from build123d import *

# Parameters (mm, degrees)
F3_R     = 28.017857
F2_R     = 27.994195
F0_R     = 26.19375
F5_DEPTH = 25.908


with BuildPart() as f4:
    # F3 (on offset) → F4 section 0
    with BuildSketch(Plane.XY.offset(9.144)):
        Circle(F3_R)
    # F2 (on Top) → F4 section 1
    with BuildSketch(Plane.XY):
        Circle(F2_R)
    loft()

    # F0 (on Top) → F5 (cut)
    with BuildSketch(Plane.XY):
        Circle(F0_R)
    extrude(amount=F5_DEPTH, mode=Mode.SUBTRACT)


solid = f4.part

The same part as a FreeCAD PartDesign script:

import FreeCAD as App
import Part
import Sketcher
Q = App.Units.Quantity

doc = App.newDocument("Part")
body = doc.addObject("PartDesign::Body", "Body")

# Sketch on XY plane
sketch1 = doc.addObject("Sketcher::SketchObject", "Sketch")
body.addObject(sketch1)
sketch1.AttachmentSupport = (doc.XY_Plane, [""])
sketch1.MapMode = "FlatFace"
sketch1.AttachmentOffset = App.Placement(App.Vector(0, 0, 0.36 * 25.4), App.Rotation())
sketch1.addGeometry(Part.Circle(App.Vector(0, 0, 0), App.Vector(0, 0, 1), 28), False)
sketch1.addConstraint([
    Sketcher.Constraint("Coincident", 0, 3, -1, 1),
    Sketcher.Constraint("Diameter", 0, 56.035714),
])

# Sketch on XY plane
sketch2 = doc.addObject("Sketcher::SketchObject", "Sketch001")
body.addObject(sketch2)
sketch2.AttachmentSupport = (doc.XY_Plane, [""])
sketch2.MapMode = "FlatFace"
sketch2.addGeometry(Part.Circle(App.Vector(0, 0, 0), App.Vector(0, 0, 1), 28), False)
sketch2.addConstraint([
    Sketcher.Constraint("Coincident", 0, 3, -1, 1),
    Sketcher.Constraint("Diameter", 0, 55.98839),
])

additiveloft = doc.addObject("PartDesign::AdditiveLoft", "AdditiveLoft")
body.addObject(additiveloft)
additiveloft.Profile = sketch1
additiveloft.Sections = [sketch2]

# Sketch on XY plane
sketch3 = doc.addObject("Sketcher::SketchObject", "Sketch002")
body.addObject(sketch3)
sketch3.AttachmentSupport = (doc.XY_Plane, [""])
sketch3.MapMode = "FlatFace"
sketch3.addGeometry(Part.Circle(App.Vector(0, 0, 0), App.Vector(0, 0, 1), 26), False)
sketch3.addConstraint([
    Sketcher.Constraint("Coincident", 0, 3, -1, 1),
    Sketcher.Constraint("Diameter", 0, Q("2.0625 in")),
])
pocket1 = doc.addObject("PartDesign::Pocket", "Pocket")
body.addObject(pocket1)
pocket1.Profile = sketch3
pocket1.Length = Q("1.02 in")
pocket1.Reversed = True

doc.recompute()
